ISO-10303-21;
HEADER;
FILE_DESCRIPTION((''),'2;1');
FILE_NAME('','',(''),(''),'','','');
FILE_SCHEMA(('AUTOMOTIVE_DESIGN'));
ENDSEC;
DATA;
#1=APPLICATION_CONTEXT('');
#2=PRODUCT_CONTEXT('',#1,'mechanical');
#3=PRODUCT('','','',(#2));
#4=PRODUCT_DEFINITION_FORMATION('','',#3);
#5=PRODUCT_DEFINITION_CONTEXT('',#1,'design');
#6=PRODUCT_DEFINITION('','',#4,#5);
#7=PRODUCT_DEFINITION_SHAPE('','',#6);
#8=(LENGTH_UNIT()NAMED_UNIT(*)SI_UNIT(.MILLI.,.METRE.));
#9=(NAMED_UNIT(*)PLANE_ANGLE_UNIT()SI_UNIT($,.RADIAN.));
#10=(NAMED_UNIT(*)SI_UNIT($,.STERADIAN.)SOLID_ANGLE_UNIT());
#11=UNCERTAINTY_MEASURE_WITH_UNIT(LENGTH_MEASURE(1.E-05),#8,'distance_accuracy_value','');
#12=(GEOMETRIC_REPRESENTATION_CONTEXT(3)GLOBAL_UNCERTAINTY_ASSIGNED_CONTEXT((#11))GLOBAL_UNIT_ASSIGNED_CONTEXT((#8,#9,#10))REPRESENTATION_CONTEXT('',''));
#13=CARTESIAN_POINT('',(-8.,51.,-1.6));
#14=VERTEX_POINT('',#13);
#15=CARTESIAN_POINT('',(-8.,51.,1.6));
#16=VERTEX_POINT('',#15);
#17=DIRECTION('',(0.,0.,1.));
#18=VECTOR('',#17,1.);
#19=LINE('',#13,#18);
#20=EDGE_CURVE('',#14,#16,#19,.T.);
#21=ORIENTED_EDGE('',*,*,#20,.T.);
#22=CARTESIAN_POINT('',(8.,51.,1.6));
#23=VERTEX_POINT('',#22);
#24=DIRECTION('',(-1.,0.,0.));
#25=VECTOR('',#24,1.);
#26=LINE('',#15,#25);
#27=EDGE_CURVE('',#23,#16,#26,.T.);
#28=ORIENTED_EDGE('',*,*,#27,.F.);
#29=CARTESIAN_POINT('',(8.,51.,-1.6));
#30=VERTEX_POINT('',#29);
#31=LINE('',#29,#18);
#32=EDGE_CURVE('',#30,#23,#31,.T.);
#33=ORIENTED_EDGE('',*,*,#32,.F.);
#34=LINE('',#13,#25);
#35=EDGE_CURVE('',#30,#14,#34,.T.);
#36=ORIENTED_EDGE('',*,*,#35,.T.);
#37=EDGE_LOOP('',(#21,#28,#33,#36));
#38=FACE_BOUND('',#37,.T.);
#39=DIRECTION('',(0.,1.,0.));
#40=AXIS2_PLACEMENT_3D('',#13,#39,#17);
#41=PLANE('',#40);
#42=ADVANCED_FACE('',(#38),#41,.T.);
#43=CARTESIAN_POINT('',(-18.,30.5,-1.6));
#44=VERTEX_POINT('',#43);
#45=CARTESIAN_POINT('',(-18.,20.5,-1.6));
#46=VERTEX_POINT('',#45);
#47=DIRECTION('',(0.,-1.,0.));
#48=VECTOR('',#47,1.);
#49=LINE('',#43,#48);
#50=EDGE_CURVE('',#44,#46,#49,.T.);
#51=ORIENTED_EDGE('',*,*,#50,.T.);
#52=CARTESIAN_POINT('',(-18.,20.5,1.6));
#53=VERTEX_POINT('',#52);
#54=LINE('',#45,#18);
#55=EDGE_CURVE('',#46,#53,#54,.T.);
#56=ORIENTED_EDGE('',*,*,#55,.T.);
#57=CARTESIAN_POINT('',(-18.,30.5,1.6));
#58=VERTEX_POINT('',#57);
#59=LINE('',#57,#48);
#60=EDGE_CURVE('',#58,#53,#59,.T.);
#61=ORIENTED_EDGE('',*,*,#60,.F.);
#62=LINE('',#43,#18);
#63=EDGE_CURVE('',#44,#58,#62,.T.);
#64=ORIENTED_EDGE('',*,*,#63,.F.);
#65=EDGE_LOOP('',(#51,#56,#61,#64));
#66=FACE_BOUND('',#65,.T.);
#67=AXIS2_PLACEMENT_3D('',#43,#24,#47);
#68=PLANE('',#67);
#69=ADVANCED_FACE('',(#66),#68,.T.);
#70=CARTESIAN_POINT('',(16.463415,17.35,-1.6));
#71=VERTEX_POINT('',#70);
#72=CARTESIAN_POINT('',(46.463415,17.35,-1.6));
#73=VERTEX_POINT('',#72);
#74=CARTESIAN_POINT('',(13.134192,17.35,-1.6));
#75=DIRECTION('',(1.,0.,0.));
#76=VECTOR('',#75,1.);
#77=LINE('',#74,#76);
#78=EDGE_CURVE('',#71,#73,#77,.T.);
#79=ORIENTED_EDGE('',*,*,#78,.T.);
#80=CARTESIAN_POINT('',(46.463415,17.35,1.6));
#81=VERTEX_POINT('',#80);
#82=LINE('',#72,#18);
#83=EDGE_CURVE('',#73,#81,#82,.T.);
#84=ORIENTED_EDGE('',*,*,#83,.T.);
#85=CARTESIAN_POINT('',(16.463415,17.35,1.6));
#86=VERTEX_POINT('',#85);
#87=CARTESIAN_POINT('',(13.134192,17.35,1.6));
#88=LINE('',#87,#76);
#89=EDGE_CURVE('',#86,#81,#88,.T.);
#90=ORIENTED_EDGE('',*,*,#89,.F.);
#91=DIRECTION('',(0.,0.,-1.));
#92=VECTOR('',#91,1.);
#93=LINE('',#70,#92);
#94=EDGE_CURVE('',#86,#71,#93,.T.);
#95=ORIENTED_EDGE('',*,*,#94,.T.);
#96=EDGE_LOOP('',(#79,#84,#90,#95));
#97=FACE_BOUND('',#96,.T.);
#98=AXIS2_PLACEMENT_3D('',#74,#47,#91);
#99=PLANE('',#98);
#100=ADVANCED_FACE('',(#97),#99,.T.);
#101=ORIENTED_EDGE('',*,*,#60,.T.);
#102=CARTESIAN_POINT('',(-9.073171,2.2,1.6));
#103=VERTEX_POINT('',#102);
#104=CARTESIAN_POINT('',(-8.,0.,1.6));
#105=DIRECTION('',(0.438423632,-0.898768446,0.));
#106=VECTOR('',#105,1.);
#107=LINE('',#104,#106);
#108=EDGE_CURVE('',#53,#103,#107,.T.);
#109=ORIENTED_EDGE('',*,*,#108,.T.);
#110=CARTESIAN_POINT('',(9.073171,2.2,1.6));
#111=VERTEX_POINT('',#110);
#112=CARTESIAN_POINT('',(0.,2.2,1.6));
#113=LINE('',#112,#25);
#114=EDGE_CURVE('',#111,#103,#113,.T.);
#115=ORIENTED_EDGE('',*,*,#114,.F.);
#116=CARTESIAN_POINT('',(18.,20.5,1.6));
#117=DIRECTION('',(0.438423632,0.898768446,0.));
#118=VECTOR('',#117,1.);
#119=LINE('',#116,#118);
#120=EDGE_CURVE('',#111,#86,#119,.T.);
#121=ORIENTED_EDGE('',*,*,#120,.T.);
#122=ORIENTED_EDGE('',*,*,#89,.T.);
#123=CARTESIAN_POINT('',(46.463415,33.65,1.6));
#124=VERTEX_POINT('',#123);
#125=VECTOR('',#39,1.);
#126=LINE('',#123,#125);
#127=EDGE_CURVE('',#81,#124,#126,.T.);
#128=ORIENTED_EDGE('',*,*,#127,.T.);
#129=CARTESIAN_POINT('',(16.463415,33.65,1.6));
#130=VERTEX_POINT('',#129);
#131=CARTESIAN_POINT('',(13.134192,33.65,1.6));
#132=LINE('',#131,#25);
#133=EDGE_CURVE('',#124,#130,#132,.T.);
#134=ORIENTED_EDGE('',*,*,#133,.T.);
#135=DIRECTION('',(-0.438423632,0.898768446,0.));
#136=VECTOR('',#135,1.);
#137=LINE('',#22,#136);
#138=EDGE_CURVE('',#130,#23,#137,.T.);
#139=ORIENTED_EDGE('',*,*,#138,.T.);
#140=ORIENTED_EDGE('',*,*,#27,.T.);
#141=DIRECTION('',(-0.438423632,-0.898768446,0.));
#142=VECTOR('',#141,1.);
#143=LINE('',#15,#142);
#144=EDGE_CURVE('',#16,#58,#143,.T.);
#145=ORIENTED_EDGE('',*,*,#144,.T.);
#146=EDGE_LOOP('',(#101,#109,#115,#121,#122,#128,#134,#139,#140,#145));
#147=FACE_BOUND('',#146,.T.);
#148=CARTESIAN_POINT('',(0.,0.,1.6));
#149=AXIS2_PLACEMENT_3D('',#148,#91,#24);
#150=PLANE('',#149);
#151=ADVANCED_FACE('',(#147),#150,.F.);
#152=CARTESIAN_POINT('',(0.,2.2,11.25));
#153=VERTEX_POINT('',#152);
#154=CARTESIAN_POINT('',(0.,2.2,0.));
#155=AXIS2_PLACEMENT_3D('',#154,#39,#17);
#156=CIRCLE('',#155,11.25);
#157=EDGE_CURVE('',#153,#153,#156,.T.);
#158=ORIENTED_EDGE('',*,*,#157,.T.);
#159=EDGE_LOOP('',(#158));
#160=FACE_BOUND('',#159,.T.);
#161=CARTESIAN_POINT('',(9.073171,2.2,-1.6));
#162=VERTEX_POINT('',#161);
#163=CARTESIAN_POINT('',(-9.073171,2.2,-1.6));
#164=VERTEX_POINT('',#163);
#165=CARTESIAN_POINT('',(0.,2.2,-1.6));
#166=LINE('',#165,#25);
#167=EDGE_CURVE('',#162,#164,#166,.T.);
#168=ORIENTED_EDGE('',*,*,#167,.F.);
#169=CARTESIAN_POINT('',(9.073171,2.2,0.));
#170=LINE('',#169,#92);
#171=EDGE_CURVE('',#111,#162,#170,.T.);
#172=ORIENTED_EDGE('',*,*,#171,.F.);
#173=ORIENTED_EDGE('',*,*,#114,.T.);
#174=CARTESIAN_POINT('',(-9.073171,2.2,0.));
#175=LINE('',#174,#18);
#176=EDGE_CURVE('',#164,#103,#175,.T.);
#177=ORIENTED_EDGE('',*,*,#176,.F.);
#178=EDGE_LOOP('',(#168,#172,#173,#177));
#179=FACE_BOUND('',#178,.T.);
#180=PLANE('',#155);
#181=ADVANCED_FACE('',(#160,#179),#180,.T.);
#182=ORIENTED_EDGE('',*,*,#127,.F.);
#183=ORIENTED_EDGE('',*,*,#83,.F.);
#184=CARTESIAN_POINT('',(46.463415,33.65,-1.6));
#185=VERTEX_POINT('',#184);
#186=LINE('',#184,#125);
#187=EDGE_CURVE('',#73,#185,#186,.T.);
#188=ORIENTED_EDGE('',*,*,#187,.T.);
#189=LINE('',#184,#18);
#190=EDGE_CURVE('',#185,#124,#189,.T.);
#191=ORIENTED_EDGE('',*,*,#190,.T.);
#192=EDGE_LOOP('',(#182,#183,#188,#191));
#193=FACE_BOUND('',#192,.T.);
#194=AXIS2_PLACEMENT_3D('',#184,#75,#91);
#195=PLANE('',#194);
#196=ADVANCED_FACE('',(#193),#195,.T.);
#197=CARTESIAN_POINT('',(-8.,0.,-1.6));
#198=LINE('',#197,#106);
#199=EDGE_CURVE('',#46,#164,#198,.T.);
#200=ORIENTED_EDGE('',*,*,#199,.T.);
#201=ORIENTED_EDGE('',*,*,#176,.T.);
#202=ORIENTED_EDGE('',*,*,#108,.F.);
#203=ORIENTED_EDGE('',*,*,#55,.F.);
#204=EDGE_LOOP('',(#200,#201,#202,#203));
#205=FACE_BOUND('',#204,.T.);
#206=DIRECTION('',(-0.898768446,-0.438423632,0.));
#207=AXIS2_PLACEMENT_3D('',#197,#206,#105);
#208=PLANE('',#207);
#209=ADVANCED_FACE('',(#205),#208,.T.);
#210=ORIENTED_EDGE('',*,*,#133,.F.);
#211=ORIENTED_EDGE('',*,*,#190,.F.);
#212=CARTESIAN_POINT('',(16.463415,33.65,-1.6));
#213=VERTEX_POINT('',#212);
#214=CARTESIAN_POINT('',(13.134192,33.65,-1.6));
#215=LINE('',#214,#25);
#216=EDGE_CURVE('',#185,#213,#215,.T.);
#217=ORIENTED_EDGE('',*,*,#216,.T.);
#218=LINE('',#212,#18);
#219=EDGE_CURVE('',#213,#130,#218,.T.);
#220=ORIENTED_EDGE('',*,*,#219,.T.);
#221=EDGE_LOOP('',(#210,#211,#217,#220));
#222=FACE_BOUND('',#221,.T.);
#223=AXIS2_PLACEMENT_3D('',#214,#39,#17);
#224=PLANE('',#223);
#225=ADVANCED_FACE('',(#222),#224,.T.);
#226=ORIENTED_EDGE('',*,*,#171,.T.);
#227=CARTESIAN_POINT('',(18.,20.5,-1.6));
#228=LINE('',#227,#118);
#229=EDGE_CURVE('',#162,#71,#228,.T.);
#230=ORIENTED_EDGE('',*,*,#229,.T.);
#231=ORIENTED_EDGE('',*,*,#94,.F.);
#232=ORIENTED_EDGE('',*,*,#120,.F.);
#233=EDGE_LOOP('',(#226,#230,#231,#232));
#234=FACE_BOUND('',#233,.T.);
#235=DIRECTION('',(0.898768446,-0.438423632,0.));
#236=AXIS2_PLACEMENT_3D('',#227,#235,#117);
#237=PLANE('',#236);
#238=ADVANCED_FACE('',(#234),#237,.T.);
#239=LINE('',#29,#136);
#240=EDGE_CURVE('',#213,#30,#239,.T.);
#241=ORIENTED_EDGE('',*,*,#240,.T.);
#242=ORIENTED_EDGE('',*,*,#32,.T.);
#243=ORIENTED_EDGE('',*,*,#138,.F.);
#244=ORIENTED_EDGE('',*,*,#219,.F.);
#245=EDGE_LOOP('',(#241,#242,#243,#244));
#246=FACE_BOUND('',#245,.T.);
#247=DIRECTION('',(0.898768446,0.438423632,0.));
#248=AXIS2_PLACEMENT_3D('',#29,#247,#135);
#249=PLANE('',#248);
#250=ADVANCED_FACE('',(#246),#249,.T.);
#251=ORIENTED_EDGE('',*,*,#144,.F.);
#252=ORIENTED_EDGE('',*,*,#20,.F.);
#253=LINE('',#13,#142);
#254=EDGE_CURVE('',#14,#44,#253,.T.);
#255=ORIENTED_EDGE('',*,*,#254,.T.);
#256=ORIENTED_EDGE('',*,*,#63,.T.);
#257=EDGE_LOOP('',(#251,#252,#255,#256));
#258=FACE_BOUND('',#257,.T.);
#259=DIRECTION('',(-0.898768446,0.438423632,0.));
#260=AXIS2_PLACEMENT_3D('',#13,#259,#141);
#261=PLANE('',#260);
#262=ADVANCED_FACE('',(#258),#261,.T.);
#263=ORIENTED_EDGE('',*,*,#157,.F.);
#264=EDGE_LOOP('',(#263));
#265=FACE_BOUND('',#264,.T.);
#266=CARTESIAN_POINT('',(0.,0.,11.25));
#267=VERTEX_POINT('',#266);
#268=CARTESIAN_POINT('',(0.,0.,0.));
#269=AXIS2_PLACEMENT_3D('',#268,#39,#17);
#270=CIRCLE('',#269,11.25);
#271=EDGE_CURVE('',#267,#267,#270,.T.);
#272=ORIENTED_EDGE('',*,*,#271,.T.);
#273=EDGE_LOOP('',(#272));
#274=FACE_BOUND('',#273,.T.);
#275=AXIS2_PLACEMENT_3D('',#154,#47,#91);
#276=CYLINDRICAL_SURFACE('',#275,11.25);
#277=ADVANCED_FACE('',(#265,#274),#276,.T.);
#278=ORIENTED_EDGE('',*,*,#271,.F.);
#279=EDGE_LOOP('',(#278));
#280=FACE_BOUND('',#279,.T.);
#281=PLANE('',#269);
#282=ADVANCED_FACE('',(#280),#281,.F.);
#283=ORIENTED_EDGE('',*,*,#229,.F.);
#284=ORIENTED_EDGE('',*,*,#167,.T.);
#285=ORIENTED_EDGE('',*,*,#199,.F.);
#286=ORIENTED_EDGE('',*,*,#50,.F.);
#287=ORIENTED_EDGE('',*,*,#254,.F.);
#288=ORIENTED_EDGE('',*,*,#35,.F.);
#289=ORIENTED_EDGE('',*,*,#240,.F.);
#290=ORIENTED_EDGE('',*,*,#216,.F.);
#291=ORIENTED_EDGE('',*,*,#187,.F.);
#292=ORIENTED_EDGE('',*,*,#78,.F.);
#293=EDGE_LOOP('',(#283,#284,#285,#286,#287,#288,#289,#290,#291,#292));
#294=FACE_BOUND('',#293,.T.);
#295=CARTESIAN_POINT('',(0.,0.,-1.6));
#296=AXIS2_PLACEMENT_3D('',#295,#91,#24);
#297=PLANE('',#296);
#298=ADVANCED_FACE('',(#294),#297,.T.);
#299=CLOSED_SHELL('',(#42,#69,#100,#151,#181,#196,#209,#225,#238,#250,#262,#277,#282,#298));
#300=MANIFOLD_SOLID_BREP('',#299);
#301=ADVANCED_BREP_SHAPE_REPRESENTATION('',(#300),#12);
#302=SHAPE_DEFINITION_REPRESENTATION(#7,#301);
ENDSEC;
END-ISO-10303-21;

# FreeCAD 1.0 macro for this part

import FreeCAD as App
import Part
import Sketcher
from FreeCAD import Vector
Q = App.Units.Quantity


def add_polygon(sketch, points):
    """Adds a closed chain of lines whose ends are joined by coincident constraints."""
    first, n = sketch.GeometryCount, len(points)
    for a, b in zip(points, points[1:] + points[:1]):
        sketch.addGeometry(Part.LineSegment(App.Vector(*a, 0), App.Vector(*b, 0)), False)
    for i in range(n):
        sketch.addConstraint(Sketcher.Constraint("Coincident", first + i, 2, first + (i + 1) % n, 1))

doc = App.newDocument("Part")
body = doc.addObject("PartDesign::Body", "Body")

sketch1 = body.newObject("Sketcher::SketchObject", "Sketch")
sketch1.AttachmentSupport = (doc.getObject("XZ_Plane"), [""])
sketch1.MapMode = "FlatFace"
sketch1.addGeometry(Part.Circle(Vector(0, 0, 0), Vector(0, 0, 1), 11), False)
sketch1.addConstraint(Sketcher.Constraint("Coincident", 0, 3, -1, 1))
sketch1.addConstraint(Sketcher.Constraint("Diameter", 0, Q("22.5 mm")))
pad1 = body.newObject("PartDesign::Pad", "Pad")
pad1.Profile = sketch1
pad1.Length = 2.2
pad1.Reversed = True

sketch2 = body.newObject("Sketcher::SketchObject", "Sketch001")
sketch2.AttachmentSupport = (doc.getObject("XY_Plane"), [""])
sketch2.MapMode = "FlatFace"
add_polygon(sketch2, [(8, 51), (-8, 51), (-18, 30), (-18, 20), (-8, 0), (8, 0), (18, 20), (18, 30)])
sketch2.addConstraint(Sketcher.Constraint("Horizontal", 0))
sketch2.addConstraint(Sketcher.Constraint("Vertical", 2))
sketch2.addConstraint(Sketcher.Constraint("Horizontal", 4))
sketch2.addConstraint(Sketcher.Constraint("Vertical", 6))
sketch2.addConstraint(Sketcher.Constraint("Symmetric", 3, 2, 4, 2, -1, 1))
sketch2.addConstraint(Sketcher.Constraint("Symmetric", 2, 2, 5, 2, -2))
sketch2.addConstraint(Sketcher.Constraint("Parallel", 1, 5))
sketch2.addConstraint(Sketcher.Constraint("Parallel", 3, 7))
sketch2.addConstraint(Sketcher.Constraint("Horizontal", 1, 2, 6, 2))
sketch2.addConstraint(Sketcher.Constraint("Vertical", 0, 2, 3, 2))
sketch2.addConstraint(Sketcher.Constraint("DistanceX", 0, 2, 0, 1, Q("16 mm")))
sketch2.addConstraint(Sketcher.Constraint("DistanceY", 2, 2, 2, 1, Q("10 mm")))
sketch2.addConstraint(Sketcher.Constraint("DistanceY", -1, 1, 0, 2, Q("51 mm")))
sketch2.addConstraint(Sketcher.Constraint("DistanceX", 1, 2, -1, 1, Q("18 mm")))
pad2 = body.newObject("PartDesign::Pad", "Pad001")
pad2.Profile = sketch2
pad2.Type = "TwoLengths"
pad2.Length = 1.6
pad2.Length2 = 1.6

sketch3 = body.newObject("Sketcher::SketchObject", "Sketch002")
sketch3.AttachmentSupport = (doc.getObject("XY_Plane"), [""])
sketch3.MapMode = "FlatFace"
sketch3.AttachmentOffset = App.Placement(Vector(0, 0, 1.6), App.Rotation())
add_polygon(sketch3, [(13, 34), (13, 17), (46, 17), (46, 34)])
sketch3.addConstraint(Sketcher.Constraint("Vertical", 0))
sketch3.addConstraint(Sketcher.Constraint("Horizontal", 1))
sketch3.addConstraint(Sketcher.Constraint("Vertical", 2))
sketch3.addConstraint(Sketcher.Constraint("Horizontal", 3))
sketch3.addConstraint(Sketcher.Constraint("DistanceY", 0, 2, 0, 1, Q("16.3 mm")))
sketch3.addConstraint(Sketcher.Constraint("DistanceY", -1, 1, 0, 2, Q("17.35 mm")))
sketch3.addConstraint(Sketcher.Constraint("DistanceX", 1, 1, 1, 2, Q("33.329222 mm")))
sketch3.addConstraint(Sketcher.Constraint("DistanceX", -1, 1, 0, 2, Q("13.134192 mm")))
pad3 = body.newObject("PartDesign::Pad", "Pad002")
pad3.Profile = sketch3
pad3.Length = 3.2
pad3.Reversed = True

doc.recompute()
